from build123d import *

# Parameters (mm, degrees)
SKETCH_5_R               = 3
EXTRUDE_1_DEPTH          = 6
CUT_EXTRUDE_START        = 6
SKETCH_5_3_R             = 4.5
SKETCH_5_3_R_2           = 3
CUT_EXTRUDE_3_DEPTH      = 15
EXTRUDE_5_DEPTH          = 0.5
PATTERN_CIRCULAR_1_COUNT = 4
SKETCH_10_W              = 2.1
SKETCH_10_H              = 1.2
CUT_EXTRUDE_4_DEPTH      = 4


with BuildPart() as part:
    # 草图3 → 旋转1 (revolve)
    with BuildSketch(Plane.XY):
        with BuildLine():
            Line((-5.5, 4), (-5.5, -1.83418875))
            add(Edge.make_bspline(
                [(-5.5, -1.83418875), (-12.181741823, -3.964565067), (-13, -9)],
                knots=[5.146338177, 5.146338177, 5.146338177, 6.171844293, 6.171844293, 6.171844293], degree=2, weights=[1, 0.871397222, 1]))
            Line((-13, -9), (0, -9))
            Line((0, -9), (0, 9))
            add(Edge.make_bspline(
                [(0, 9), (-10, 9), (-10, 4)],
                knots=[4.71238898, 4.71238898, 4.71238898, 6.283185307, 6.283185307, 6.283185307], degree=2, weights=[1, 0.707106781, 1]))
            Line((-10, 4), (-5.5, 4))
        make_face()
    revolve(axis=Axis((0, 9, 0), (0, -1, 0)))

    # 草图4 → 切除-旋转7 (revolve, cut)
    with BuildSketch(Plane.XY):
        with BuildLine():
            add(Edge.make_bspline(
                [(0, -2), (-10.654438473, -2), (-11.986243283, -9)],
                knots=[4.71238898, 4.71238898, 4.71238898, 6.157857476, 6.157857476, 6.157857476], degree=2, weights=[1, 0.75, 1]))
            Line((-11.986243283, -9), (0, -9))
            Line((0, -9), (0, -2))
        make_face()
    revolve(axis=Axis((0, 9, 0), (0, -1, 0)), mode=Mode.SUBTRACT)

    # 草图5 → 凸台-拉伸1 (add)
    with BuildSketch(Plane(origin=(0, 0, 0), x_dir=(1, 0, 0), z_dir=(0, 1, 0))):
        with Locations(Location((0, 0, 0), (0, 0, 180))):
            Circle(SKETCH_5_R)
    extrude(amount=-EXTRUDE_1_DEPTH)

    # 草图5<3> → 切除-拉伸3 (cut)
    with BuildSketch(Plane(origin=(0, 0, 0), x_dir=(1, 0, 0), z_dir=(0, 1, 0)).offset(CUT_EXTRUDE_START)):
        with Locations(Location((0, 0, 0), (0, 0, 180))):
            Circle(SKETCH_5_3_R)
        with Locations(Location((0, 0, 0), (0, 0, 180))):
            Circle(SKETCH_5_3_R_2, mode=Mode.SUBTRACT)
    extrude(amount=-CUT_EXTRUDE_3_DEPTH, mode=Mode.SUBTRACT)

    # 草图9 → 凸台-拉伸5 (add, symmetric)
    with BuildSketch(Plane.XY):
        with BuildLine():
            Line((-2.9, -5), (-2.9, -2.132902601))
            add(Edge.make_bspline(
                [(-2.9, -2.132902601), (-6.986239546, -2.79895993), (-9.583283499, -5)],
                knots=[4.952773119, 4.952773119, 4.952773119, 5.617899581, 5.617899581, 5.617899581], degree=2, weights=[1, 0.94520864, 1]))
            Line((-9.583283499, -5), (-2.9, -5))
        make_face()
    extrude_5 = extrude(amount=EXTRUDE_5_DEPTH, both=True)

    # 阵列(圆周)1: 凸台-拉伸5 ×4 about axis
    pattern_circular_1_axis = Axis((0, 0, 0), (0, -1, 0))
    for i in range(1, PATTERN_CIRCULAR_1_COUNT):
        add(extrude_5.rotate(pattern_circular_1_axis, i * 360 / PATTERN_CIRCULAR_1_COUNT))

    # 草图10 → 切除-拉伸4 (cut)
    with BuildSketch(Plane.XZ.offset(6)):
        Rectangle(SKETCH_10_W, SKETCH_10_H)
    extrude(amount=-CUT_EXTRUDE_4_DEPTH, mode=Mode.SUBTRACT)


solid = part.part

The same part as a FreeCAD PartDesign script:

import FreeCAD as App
import Part
import Sketcher

V = App.Vector
Q = App.Units.Quantity


def add_polygon(sketch, points):
    """Adds a closed chain of lines whose ends are joined by coincident constraints."""
    first, n = sketch.GeometryCount, len(points)
    for a, b in zip(points, points[1:] + points[:1]):
        sketch.addGeometry(Part.LineSegment(App.Vector(*a, 0), App.Vector(*b, 0)), False)
    for i in range(n):
        sketch.addConstraint(Sketcher.Constraint("Coincident", first + i, 2, first + (i + 1) % n, 1))

doc = App.newDocument("Part")
body = doc.addObject("PartDesign::Body", "Body")

sketch1 = body.newObject("Sketcher::SketchObject", "Sketch")
sketch1.AttachmentSupport = (doc.getObject("XY_Plane"), [""])
sketch1.MapMode = "FlatFace"
sketch1.addGeometry([
    Part.LineSegment(V(-5.5, 4, 0), V(-5.5, -1.834189, 0)),
    Part.BSplineCurve([V(-5.5, -1.834189, 0), V(-12.181742, -3.964565, 0), V(-13, -9, 0)], [3, 3], [5.146338177, 6.171844293], False, 2, [1, 0.871397222, 1], False),
    Part.LineSegment(V(-13, -9, 0), V(0, -9, 0)),
    Part.LineSegment(V(0, -9, 0), V(0, 9, 0)),
    Part.BSplineCurve([V(0, 9, 0), V(-10, 9, 0), V(-10, 4, 0)], [3, 3], [4.71238898, 6.283185307], False, 2, [1, 0.707106781, 1], False),
    Part.LineSegment(V(-10, 4, 0), V(-5.5, 4, 0)),
], False)
sketch1.addConstraint([
    Sketcher.Constraint("Block", 1),
    Sketcher.Constraint("Block", 4),
    Sketcher.Constraint("Coincident", 0, 2, 1, 1),
    Sketcher.Constraint("Coincident", 1, 2, 2, 1),
    Sketcher.Constraint("Coincident", 2, 2, 3, 1),
    Sketcher.Constraint("Coincident", 3, 2, 4, 1),
    Sketcher.Constraint("Coincident", 4, 2, 5, 1),
    Sketcher.Constraint("Coincident", 5, 2, 0, 1),
    Sketcher.Constraint("Vertical", 0),
    Sketcher.Constraint("Horizontal", 2),
    Sketcher.Constraint("Vertical", 3),
    Sketcher.Constraint("Horizontal", 5),
])
revolution = body.newObject("PartDesign::Revolution", "Revolution")
revolution.Profile = sketch1
revolution.ReferenceAxis = (sketch1, ["V_Axis"])
revolution.Angle = 360

sketch2 = body.newObject("Sketcher::SketchObject", "Sketch001")
sketch2.AttachmentSupport = (doc.getObject("XY_Plane"), [""])
sketch2.MapMode = "FlatFace"
sketch2.addGeometry([
    Part.BSplineCurve([V(0, -2, 0), V(-10.654438, -2, 0), V(-11.986243, -9, 0)], [3, 3], [4.71238898, 6.157857476], False, 2, [1, 0.75, 1], False),
    Part.LineSegment(V(-11.986243, -9, 0), V(0, -9, 0)),
    Part.LineSegment(V(0, -9, 0), V(0, -2, 0)),
], False)
sketch2.addConstraint([
    Sketcher.Constraint("Block", 0),
    Sketcher.Constraint("Coincident", 0, 2, 1, 1),
    Sketcher.Constraint("Coincident", 1, 2, 2, 1),
    Sketcher.Constraint("Coincident", 2, 2, 0, 1),
    Sketcher.Constraint("Horizontal", 1),
    Sketcher.Constraint("Vertical", 2),
])
groove = body.newObject("PartDesign::Groove", "Groove")
groove.Profile = sketch2
groove.ReferenceAxis = (sketch2, ["V_Axis"])
groove.Angle = 360

sketch3 = body.newObject("Sketcher::SketchObject", "Sketch002")
sketch3.AttachmentSupport = (doc.getObject("XZ_Plane"), [""])
sketch3.MapMode = "FlatFace"
sketch3.addGeometry(Part.Circle(V(0, 0, 0), V(0, 0, 1), 3), False)
sketch3.addConstraint([
    Sketcher.Constraint("Coincident", 0, 3, -1, 1),
    Sketcher.Constraint("Diameter", 0, Q("6 mm")),
])
pad1 = body.newObject("PartDesign::Pad", "Pad")
pad1.Profile = sketch3
pad1.Length = 6

sketch4 = body.newObject("Sketcher::SketchObject", "Sketch003")
sketch4.AttachmentSupport = (doc.getObject("XZ_Plane"), [""])
sketch4.MapMode = "FlatFace"
sketch4.AttachmentOffset = App.Placement(V(0, 0, -6), App.Rotation())
sketch4.addGeometry([
    Part.Circle(V(0, 0, 0), V(0, 0, 1), 4.5),
    Part.Circle(V(0, 0, 0), V(0, 0, 1), 3),
], False)
sketch4.addConstraint([
    Sketcher.Constraint("Coincident", 0, 3, -1, 1),
    Sketcher.Constraint("Coincident", 1, 3, -1, 1),
    Sketcher.Constraint("Diameter", 0, Q("9 mm")),
    Sketcher.Constraint("Diameter", 1, Q("6 mm")),
])
pocket1 = body.newObject("PartDesign::Pocket", "Pocket")
pocket1.Profile = sketch4
pocket1.Length = 15
pocket1.Reversed = True

sketch5 = body.newObject("Sketcher::SketchObject", "Sketch004")
sketch5.AttachmentSupport = (doc.getObject("XY_Plane"), [""])
sketch5.MapMode = "FlatFace"
sketch5.addGeometry([
    Part.LineSegment(V(-2.9, -5, 0), V(-2.9, -2.132903, 0)),
    Part.BSplineCurve([V(-2.9, -2.132903, 0), V(-6.98624, -2.79896, 0), V(-9.583283, -5, 0)], [3, 3], [4.952773119, 5.617899581], False, 2, [1, 0.94520864, 1], False),
    Part.LineSegment(V(-9.583283, -5, 0), V(-2.9, -5, 0)),
], False)
sketch5.addConstraint([
    Sketcher.Constraint("Block", 1),
    Sketcher.Constraint("Coincident", 0, 2, 1, 1),
    Sketcher.Constraint("Coincident", 1, 2, 2, 1),
    Sketcher.Constraint("Coincident", 2, 2, 0, 1),
    Sketcher.Constraint("Vertical", 0),
    Sketcher.Constraint("Horizontal", 2),
])
pad2 = body.newObject("PartDesign::Pad", "Pad001")
pad2.Profile = sketch5
pad2.Length = 1
pad2.Midplane = True
doc.recompute()

polarpattern = body.newObject("PartDesign::PolarPattern", "PolarPattern")
polarpattern.Originals = [pad2]
polarpattern.Axis = (doc.getObject("Y_Axis"), [""])
polarpattern.Angle = 360
polarpattern.Occurrences = 4
body.Tip = polarpattern

sketch6 = body.newObject("Sketcher::SketchObject", "Sketch005")
sketch6.AttachmentSupport = (doc.getObject("XZ_Plane"), [""])
sketch6.MapMode = "FlatFace"
sketch6.AttachmentOffset = App.Placement(V(0, 0, 6), App.Rotation())
add_polygon(sketch6, [(-1.1, 0.6), (-1.1, -0.6), (1.1, -0.6), (1.1, 0.6)])
sketch6.addConstraint([
    Sketcher.Constraint("Vertical", 0),
    Sketcher.Constraint("Horizontal", 1),
    Sketcher.Constraint("Vertical", 2),
    Sketcher.Constraint("Horizontal", 3),
    Sketcher.Constraint("Symmetric", 0, 2, 2, 2, -1, 1),
    Sketcher.Constraint("DistanceX", 1, 1, 1, 2, Q("2.1 mm")),
    Sketcher.Constraint("DistanceY", 0, 2, 0, 1, Q("1.2 mm")),
])
pocket2 = body.newObject("PartDesign::Pocket", "Pocket001")
pocket2.Profile = sketch6
pocket2.Length = 4

doc.recompute()
